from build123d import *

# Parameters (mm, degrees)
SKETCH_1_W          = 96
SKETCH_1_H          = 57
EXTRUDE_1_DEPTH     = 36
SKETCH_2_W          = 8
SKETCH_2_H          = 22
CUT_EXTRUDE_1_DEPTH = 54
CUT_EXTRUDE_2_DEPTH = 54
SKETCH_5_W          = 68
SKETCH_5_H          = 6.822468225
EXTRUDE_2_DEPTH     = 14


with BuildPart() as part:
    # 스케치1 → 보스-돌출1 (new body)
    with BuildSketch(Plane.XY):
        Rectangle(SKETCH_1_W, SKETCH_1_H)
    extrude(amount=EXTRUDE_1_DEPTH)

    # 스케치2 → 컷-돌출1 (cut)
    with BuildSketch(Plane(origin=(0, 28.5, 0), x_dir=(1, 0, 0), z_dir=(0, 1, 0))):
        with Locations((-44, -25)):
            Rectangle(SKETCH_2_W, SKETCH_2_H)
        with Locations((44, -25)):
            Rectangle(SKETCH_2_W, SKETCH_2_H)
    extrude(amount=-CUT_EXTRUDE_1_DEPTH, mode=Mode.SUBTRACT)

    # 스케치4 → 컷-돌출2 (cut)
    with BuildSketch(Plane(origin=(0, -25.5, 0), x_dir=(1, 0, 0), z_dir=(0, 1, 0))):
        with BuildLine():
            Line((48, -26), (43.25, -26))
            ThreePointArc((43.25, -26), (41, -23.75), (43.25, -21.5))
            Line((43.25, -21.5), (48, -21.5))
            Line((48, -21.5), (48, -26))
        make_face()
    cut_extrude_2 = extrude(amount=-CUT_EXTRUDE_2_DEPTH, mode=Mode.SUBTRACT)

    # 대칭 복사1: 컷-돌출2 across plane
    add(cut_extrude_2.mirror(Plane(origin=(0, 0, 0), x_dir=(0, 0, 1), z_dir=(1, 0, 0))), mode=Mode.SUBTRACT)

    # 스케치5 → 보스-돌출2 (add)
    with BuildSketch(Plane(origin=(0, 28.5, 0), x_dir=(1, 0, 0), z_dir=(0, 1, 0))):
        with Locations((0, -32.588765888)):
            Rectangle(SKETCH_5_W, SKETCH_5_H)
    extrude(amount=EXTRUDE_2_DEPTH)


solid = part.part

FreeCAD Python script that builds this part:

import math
import FreeCAD as App
import Part
import Sketcher
from FreeCAD import Vector
Q = App.Units.Quantity


def add_polygon(sketch, points):
    """Adds a closed chain of lines whose ends are joined by coincident constraints."""
    first, n = sketch.GeometryCount, len(points)
    for a, b in zip(points, points[1:] + points[:1]):
        sketch.addGeometry(Part.LineSegment(App.Vector(*a, 0), App.Vector(*b, 0)), False)
    for i in range(n):
        sketch.addConstraint(Sketcher.Constraint("Coincident", first + i, 2, first + (i + 1) % n, 1))

doc = App.newDocument("Part")
body = doc.addObject("PartDesign::Body", "Body")

# Sketch on XY plane
sketch1 = doc.addObject("Sketcher::SketchObject", "Sketch")
body.addObject(sketch1)
sketch1.AttachmentSupport = (doc.XY_Plane, [""])
sketch1.MapMode = "FlatFace"
add_polygon(sketch1, [(-48, 28), (-48, -28), (48, -28), (48, 28)])  # lines 0-3
sketch1.addConstraint([
    Sketcher.Constraint("Vertical", 0),
    Sketcher.Constraint("Horizontal", 1),
    Sketcher.Constraint("Vertical", 2),
    Sketcher.Constraint("Horizontal", 3),
    Sketcher.Constraint("Symmetric", 0, 2, 2, 2, -1, 1),
    Sketcher.Constraint("DistanceX", 1, 1, 1, 2, Q("96 mm")),
    Sketcher.Constraint("DistanceY", 0, 2, 0, 1, Q("57 mm")),
])
pad1 = doc.addObject("PartDesign::Pad", "Pad")
body.addObject(pad1)
pad1.Profile = sketch1
pad1.Length = 36

# Sketch on XZ plane
sketch2 = doc.addObject("Sketcher::SketchObject", "Sketch001")
body.addObject(sketch2)
sketch2.AttachmentSupport = (doc.XZ_Plane, [""])
sketch2.MapMode = "FlatFace"
sketch2.AttachmentOffset = App.Placement(Vector(0, 0, -28.5), App.Rotation())
add_polygon(sketch2, [(-48, 14), (-48, 36), (-40, 36), (-40, 14)])  # lines 0-3
add_polygon(sketch2, [(40, 14), (40, 36), (48, 36), (48, 14)])  # lines 4-7
sketch2.addConstraint([
    Sketcher.Constraint("Vertical", 0),
    Sketcher.Constraint("Horizontal", 1),
    Sketcher.Constraint("Vertical", 2),
    Sketcher.Constraint("Horizontal", 3),
    Sketcher.Constraint("Vertical", 4),
    Sketcher.Constraint("Horizontal", 5),
    Sketcher.Constraint("Vertical", 6),
    Sketcher.Constraint("Horizontal", 7),
    Sketcher.Constraint("Symmetric", 1, 2, 4, 2, -2),
    Sketcher.Constraint("Symmetric", 3, 2, 6, 2, -2),
    Sketcher.Constraint("DistanceX", 1, 1, 1, 2, Q("8 mm")),
    Sketcher.Constraint("DistanceY", 0, 1, 0, 2, Q("22 mm")),
    Sketcher.Constraint("DistanceX", 0, 2, -1, 1, Q("48 mm")),
    Sketcher.Constraint("DistanceY", -1, 1, 0, 2, Q("36 mm")),
])
pocket1 = doc.addObject("PartDesign::Pocket", "Pocket")
body.addObject(pocket1)
pocket1.Profile = sketch2
pocket1.Length = 54
pocket1.Reversed = True

# Sketch on XZ plane
sketch3 = doc.addObject("Sketcher::SketchObject", "Sketch002")
body.addObject(sketch3)
sketch3.AttachmentSupport = (doc.XZ_Plane, [""])
sketch3.MapMode = "FlatFace"
sketch3.AttachmentOffset = App.Placement(Vector(0, 0, 25.5), App.Rotation())
sketch3.addGeometry([
    Part.LineSegment(Vector(43.2, 26, 0), Vector(48, 26, 0)),
    Part.LineSegment(Vector(48, 26, 0), Vector(48, 21.5, 0)),
    Part.LineSegment(Vector(48, 21.5, 0), Vector(43.2, 21.5, 0)),
    Part.ArcOfCircle(Part.Circle(Vector(43.2, 23.8, 0), Vector(0, 0, 1), 2.2), math.radians(90), math.radians(270)),
], False)
sketch3.addConstraint([
    Sketcher.Constraint("Coincident", 0, 2, 1, 1),
    Sketcher.Constraint("Coincident", 1, 2, 2, 1),
    Sketcher.Constraint("Tangent", 2, 2, 3, 2),
    Sketcher.Constraint("Tangent", 3, 1, 0, 1),
    Sketcher.Constraint("Horizontal", 0),
    Sketcher.Constraint("Vertical", 1),
    Sketcher.Constraint("Horizontal", 2),
    Sketcher.Constraint("Radius", 3, Q("2.25 mm")),
    Sketcher.Constraint("DistanceX", -1, 1, 0, 2, Q("48 mm")),
    Sketcher.Constraint("DistanceY", -1, 1, 0, 2, Q("26 mm")),
    Sketcher.Constraint("DistanceX", 0, 1, 0, 2, Q("4.75 mm")),
])
pocket2 = doc.addObject("PartDesign::Pocket", "Pocket001")
body.addObject(pocket2)
pocket2.Profile = sketch3
pocket2.Length = 54
pocket2.Reversed = True
doc.recompute()

mirrored = doc.addObject("PartDesign::Mirrored", "Mirrored")
body.addObject(mirrored)
mirrored.Originals = [pocket2]
mirrored.MirrorPlane = (doc.YZ_Plane, [""])
body.Tip = mirrored

# Sketch on XZ plane
sketch4 = doc.addObject("Sketcher::SketchObject", "Sketch003")
body.addObject(sketch4)
sketch4.AttachmentSupport = (doc.XZ_Plane, [""])
sketch4.MapMode = "FlatFace"
sketch4.AttachmentOffset = App.Placement(Vector(0, 0, -28.5), App.Rotation())
add_polygon(sketch4, [(-34, 29), (-34, 36), (34, 36), (34, 29)])  # lines 0-3
sketch4.addConstraint([
    Sketcher.Constraint("Vertical", 0),
    Sketcher.Constraint("Horizontal", 1),
    Sketcher.Constraint("Vertical", 2),
    Sketcher.Constraint("Horizontal", 3),
    Sketcher.Constraint("DistanceX", 1, 1, 1, 2, Q("68 mm")),
    Sketcher.Constraint("DistanceX", 0, 2, -1, 1, Q("34 mm")),
    Sketcher.Constraint("DistanceY", -1, 1, 0, 2, Q("36 mm")),
    Sketcher.Constraint("DistanceY", 0, 1, 0, 2, Q("6.822468 mm")),
])
pad2 = doc.addObject("PartDesign::Pad", "Pad001")
body.addObject(pad2)
pad2.Profile = sketch4
pad2.Length = 14
pad2.Reversed = True

doc.recompute()
